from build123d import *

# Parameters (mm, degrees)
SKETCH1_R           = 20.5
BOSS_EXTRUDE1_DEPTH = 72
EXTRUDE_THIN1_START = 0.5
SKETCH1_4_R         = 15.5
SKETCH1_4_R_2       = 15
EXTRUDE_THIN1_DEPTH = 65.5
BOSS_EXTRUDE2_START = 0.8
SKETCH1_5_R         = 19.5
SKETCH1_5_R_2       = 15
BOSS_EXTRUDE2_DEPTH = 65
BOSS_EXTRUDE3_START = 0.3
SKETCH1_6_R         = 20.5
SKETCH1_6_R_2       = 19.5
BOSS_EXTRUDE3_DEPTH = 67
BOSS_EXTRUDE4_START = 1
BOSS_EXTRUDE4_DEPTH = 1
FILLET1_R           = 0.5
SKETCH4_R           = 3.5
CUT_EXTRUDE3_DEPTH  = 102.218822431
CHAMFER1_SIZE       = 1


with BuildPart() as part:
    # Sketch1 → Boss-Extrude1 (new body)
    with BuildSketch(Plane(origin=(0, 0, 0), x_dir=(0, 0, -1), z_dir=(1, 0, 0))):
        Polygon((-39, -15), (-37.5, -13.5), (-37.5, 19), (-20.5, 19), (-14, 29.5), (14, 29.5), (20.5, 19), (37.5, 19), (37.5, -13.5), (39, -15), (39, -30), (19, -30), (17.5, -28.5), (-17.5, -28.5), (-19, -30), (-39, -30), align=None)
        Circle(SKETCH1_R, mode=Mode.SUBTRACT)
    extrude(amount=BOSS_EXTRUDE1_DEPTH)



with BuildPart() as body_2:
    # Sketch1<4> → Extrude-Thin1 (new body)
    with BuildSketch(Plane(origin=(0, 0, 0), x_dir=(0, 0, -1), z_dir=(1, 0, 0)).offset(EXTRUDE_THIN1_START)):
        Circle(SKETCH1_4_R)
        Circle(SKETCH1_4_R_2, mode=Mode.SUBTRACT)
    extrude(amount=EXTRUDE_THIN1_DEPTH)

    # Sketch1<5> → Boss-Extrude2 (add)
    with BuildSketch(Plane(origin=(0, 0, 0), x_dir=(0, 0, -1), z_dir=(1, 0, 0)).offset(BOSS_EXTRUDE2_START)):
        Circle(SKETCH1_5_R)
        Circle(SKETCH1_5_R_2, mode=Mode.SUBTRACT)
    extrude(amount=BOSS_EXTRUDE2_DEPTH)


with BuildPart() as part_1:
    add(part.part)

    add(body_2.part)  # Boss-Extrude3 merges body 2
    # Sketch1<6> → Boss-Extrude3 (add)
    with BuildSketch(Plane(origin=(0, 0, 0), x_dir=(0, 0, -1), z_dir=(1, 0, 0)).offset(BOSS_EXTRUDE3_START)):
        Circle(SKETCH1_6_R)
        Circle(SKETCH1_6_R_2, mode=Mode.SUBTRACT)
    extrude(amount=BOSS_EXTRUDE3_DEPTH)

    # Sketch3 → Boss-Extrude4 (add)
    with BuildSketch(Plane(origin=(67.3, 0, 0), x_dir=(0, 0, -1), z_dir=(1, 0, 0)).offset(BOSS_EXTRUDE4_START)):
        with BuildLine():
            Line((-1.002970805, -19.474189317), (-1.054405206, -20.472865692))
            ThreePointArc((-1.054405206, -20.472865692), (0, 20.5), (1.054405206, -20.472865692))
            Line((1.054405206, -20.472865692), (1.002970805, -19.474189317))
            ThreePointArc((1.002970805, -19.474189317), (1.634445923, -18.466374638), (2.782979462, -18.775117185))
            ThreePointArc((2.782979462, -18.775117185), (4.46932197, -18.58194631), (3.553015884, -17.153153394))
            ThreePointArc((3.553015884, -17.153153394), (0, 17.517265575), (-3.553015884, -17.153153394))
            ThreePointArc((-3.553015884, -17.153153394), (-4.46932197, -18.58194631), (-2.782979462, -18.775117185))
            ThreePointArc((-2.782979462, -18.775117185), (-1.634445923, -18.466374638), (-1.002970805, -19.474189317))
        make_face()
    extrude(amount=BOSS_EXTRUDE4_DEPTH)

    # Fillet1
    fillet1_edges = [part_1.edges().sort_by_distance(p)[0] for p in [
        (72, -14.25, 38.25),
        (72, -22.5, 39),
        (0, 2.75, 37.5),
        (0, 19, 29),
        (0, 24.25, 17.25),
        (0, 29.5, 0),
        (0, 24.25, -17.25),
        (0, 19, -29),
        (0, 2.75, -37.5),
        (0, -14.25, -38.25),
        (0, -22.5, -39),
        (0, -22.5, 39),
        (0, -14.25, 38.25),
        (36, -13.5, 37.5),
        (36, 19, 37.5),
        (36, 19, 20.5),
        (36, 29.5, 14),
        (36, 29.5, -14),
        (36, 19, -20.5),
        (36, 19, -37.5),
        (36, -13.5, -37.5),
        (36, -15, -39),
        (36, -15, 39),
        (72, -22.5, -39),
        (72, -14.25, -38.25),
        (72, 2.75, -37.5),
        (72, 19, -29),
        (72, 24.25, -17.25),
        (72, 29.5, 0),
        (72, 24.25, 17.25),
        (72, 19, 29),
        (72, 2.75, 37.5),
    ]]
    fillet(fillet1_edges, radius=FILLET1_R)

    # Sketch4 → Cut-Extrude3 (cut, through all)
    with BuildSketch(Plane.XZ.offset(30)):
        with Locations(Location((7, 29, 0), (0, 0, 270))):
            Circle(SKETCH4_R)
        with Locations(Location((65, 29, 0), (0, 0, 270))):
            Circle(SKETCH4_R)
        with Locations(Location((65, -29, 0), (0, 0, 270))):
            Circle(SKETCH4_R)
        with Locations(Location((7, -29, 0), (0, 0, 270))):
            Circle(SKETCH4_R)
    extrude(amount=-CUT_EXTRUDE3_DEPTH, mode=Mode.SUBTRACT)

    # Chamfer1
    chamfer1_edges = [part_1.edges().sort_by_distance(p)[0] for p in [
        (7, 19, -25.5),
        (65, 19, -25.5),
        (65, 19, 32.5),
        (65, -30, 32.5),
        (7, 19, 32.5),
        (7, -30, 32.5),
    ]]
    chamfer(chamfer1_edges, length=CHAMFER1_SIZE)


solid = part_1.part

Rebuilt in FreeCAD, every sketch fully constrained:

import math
import FreeCAD as App
import Part
import Sketcher
Q = App.Units.Quantity


def edges_at(feature, points):
    """Names of the edges that pass closest to the given points."""
    edges = feature.Shape.Edges
    near = lambda p: min(range(len(edges)), key=lambda i: edges[i].distToShape(Part.Vertex(*p))[0])
    return sorted({f"Edge{near(p) + 1}" for p in points})

doc = App.newDocument("Part")
body = doc.addObject("PartDesign::Body", "Body")

sketch1 = doc.addObject("Sketcher::SketchObject", "Sketch")
body.addObject(sketch1)
sketch1.AttachmentSupport = (doc.YZ_Plane, [""])
sketch1.MapMode = "FlatFace"
sketch1.addGeometry([
    Part.LineSegment(App.Vector(-13.5, 37.5, 0), App.Vector(-15, 39, 0)),
    Part.LineSegment(App.Vector(-15, 39, 0), App.Vector(-30, 39, 0)),
    Part.LineSegment(App.Vector(-30, 39, 0), App.Vector(-30, 19, 0)),
    Part.LineSegment(App.Vector(-30, 19, 0), App.Vector(-28.5, 17.5, 0)),
    Part.LineSegment(App.Vector(-28.5, 17.5, 0), App.Vector(-28.5, -17.5, 0)),
    Part.LineSegment(App.Vector(-28.5, -17.5, 0), App.Vector(-30, -19, 0)),
    Part.LineSegment(App.Vector(-30, -19, 0), App.Vector(-30, -39, 0)),
    Part.LineSegment(App.Vector(-30, -39, 0), App.Vector(-15, -39, 0)),
    Part.LineSegment(App.Vector(-15, -39, 0), App.Vector(-13.5, -37.5, 0)),
    Part.LineSegment(App.Vector(-13.5, -37.5, 0), App.Vector(19, -37.5, 0)),
    Part.LineSegment(App.Vector(19, -37.5, 0), App.Vector(19, -20.5, 0)),
    Part.LineSegment(App.Vector(19, -20.5, 0), App.Vector(29.5, -14, 0)),
    Part.LineSegment(App.Vector(29.5, -14, 0), App.Vector(29.5, 14, 0)),
    Part.LineSegment(App.Vector(29.5, 14, 0), App.Vector(19, 20.5, 0)),
    Part.LineSegment(App.Vector(19, 20.5, 0), App.Vector(19, 37.5, 0)),
    Part.LineSegment(App.Vector(19, 37.5, 0), App.Vector(-13.5, 37.5, 0)),
    Part.Circle(App.Vector(0, 0, 0), App.Vector(0, 0, 1), 20.5),
], False)
sketch1.addConstraint([
    Sketcher.Constraint("Coincident", 0, 2, 1, 1),
    Sketcher.Constraint("Coincident", 1, 2, 2, 1),
    Sketcher.Constraint("Coincident", 2, 2, 3, 1),
    Sketcher.Constraint("Coincident", 3, 2, 4, 1),
    Sketcher.Constraint("Coincident", 4, 2, 5, 1),
    Sketcher.Constraint("Coincident", 5, 2, 6, 1),
    Sketcher.Constraint("Coincident", 6, 2, 7, 1),
    Sketcher.Constraint("Coincident", 7, 2, 8, 1),
    Sketcher.Constraint("Coincident", 8, 2, 9, 1),
    Sketcher.Constraint("Coincident", 9, 2, 10, 1),
    Sketcher.Constraint("Coincident", 10, 2, 11, 1),
    Sketcher.Constraint("Coincident", 11, 2, 12, 1),
    Sketcher.Constraint("Coincident", 12, 2, 13, 1),
    Sketcher.Constraint("Coincident", 13, 2, 14, 1),
    Sketcher.Constraint("Coincident", 14, 2, 15, 1),
    Sketcher.Constraint("Coincident", 15, 2, 0, 1),
    Sketcher.Constraint("Horizontal", 1),
    Sketcher.Constraint("Vertical", 2),
    Sketcher.Constraint("Vertical", 4),
    Sketcher.Constraint("Vertical", 6),
    Sketcher.Constraint("Horizontal", 7),
    Sketcher.Constraint("Horizontal", 9),
    Sketcher.Constraint("Vertical", 10),
    Sketcher.Constraint("Vertical", 12),
    Sketcher.Constraint("Vertical", 14),
    Sketcher.Constraint("Horizontal", 15),
    Sketcher.Constraint("Coincident", 16, 3, -1, 1),
    Sketcher.Constraint("Symmetric", 2, 2, 5, 2, -1),
    Sketcher.Constraint("Symmetric", 0, 2, 7, 2, -1),
    Sketcher.Constraint("Symmetric", 10, 2, 13, 2, -1),
    Sketcher.Constraint("Symmetric", 8, 2, 15, 2, -1),
    Sketcher.Constraint("Parallel", 0, 3),
    Sketcher.Constraint("Perpendicular", 3, 5),
    Sketcher.Constraint("Parallel", 5, 8),
    Sketcher.Constraint("Equal", 0, 3),
    Sketcher.Constraint("Equal", 11, 13),
    Sketcher.Constraint("Diameter", 16, Q("41 mm")),
    Sketcher.Constraint("DistanceX", 1, 2, 1, 1, Q("15 mm")),
    Sketcher.Constraint("DistanceY", 2, 2, 2, 1, Q("20 mm")),
    Sketcher.Constraint("DistanceY", 4, 2, 4, 1, Q("35 mm")),
    Sketcher.Constraint("DistanceY", 10, 1, 10, 2, Q("17 mm")),
    Sketcher.Constraint("DistanceY", 12, 1, 12, 2, Q("28 mm")),
    Sketcher.Constraint("DistanceX", 9, 1, 9, 2, Q("32.5 mm")),
    Sketcher.Constraint("DistanceX", 0, 2, -1, 1, Q("15 mm")),
    Sketcher.Constraint("DistanceY", -1, 1, 0, 2, Q("39 mm")),
    Sketcher.Constraint("DistanceX", 8, 2, 11, 2, Q("43 mm")),
])
pad1 = doc.addObject("PartDesign::Pad", "Pad")
body.addObject(pad1)
pad1.Profile = sketch1
pad1.Length = 72
body2 = doc.addObject("PartDesign::Body", "Body001")

sketch2 = doc.addObject("Sketcher::SketchObject", "Sketch001")
body2.addObject(sketch2)
sketch2.AttachmentSupport = (doc.getObject("YZ_Plane001"), [""])
sketch2.MapMode = "FlatFace"
sketch2.AttachmentOffset = App.Placement(App.Vector(0, 0, 0.5), App.Rotation())
sketch2.addGeometry([
    Part.Circle(App.Vector(0, 0, 0), App.Vector(0, 0, 1), 16),
    Part.Circle(App.Vector(0, 0, 0), App.Vector(0, 0, 1), 15),
], False)
sketch2.addConstraint([
    Sketcher.Constraint("Coincident", 0, 3, -1, 1),
    Sketcher.Constraint("Coincident", 1, 3, -1, 1),
    Sketcher.Constraint("Diameter", 0, Q("31 mm")),
    Sketcher.Constraint("Diameter", 1, Q("30 mm")),
])
pad2 = doc.addObject("PartDesign::Pad", "Pad001")
body2.addObject(pad2)
pad2.Profile = sketch2
pad2.Length = 65.5

sketch3 = doc.addObject("Sketcher::SketchObject", "Sketch002")
body2.addObject(sketch3)
sketch3.AttachmentSupport = (doc.getObject("YZ_Plane001"), [""])
sketch3.MapMode = "FlatFace"
sketch3.AttachmentOffset = App.Placement(App.Vector(0, 0, 0.8), App.Rotation())
sketch3.addGeometry([
    Part.Circle(App.Vector(0, 0, 0), App.Vector(0, 0, 1), 20),
    Part.Circle(App.Vector(0, 0, 0), App.Vector(0, 0, 1), 15),
], False)
sketch3.addConstraint([
    Sketcher.Constraint("Coincident", 0, 3, -1, 1),
    Sketcher.Constraint("Coincident", 1, 3, -1, 1),
    Sketcher.Constraint("Diameter", 0, Q("39 mm")),
    Sketcher.Constraint("Diameter", 1, Q("30 mm")),
])
pad3 = doc.addObject("PartDesign::Pad", "Pad002")
body2.addObject(pad3)
pad3.Profile = sketch3
pad3.Length = 65
body.AllowCompound = True
doc.recompute()

boolean = doc.addObject("PartDesign::Boolean", "Boolean")
body.addObject(boolean)
boolean.Type = "Fuse"
boolean.addObjects([body2])

sketch4 = doc.addObject("Sketcher::SketchObject", "Sketch003")
body.addObject(sketch4)
sketch4.AttachmentSupport = (doc.YZ_Plane, [""])
sketch4.MapMode = "FlatFace"
sketch4.AttachmentOffset = App.Placement(App.Vector(0, 0, 0.3), App.Rotation())
sketch4.addGeometry([
    Part.Circle(App.Vector(0, 0, 0), App.Vector(0, 0, 1), 20),
    Part.Circle(App.Vector(0, 0, 0), App.Vector(0, 0, 1), 20),
], False)
sketch4.addConstraint([
    Sketcher.Constraint("Coincident", 0, 3, -1, 1),
    Sketcher.Constraint("Coincident", 1, 3, -1, 1),
    Sketcher.Constraint("Diameter", 0, Q("41 mm")),
    Sketcher.Constraint("Diameter", 1, Q("39 mm")),
])
pad4 = doc.addObject("PartDesign::Pad", "Pad003")
body.addObject(pad4)
pad4.Profile = sketch4
pad4.Length = 67

sketch5 = doc.addObject("Sketcher::SketchObject", "Sketch004")
body.addObject(sketch5)
sketch5.AttachmentSupport = (doc.YZ_Plane, [""])
sketch5.MapMode = "FlatFace"
sketch5.AttachmentOffset = App.Placement(App.Vector(0, 0, 68.3), App.Rotation())
sketch5.addGeometry([
    Part.LineSegment(App.Vector(-20.5, 1.1, 0), App.Vector(-19.5, 1, 0)),
    Part.ArcOfCircle(Part.Circle(App.Vector(-19.4, 2, 0), App.Vector(0, 0, 1), 1), math.radians(-94), math.radians(52)),
    Part.ArcOfCircle(Part.Circle(App.Vector(-18.2, 3.6, 0), App.Vector(0, 0, 1), 1), math.radians(-1), math.radians(232)),
    Part.ArcOfCircle(Part.Circle(App.Vector(0, 0, 0), App.Vector(0, 0, 1), 17.5), math.radians(-168), math.radians(168)),
    Part.ArcOfCircle(Part.Circle(App.Vector(-18.2, -3.6, 0), App.Vector(0, 0, 1), 1), math.radians(128), math.radians(361)),
    Part.ArcOfCircle(Part.Circle(App.Vector(-19.4, -2, 0), App.Vector(0, 0, 1), 1), math.radians(-52), math.radians(94)),
    Part.LineSegment(App.Vector(-19.5, -1, 0), App.Vector(-20.5, -1.1, 0)),
    Part.ArcOfCircle(Part.Circle(App.Vector(0, 0, 0), App.Vector(0, 0, 1), 20.5), math.radians(-177), math.radians(177)),
], False)
sketch5.addConstraint([
    Sketcher.Constraint("Coincident", 0, 2, 1, 1),
    Sketcher.Constraint("Tangent", 1, 2, 2, 2),
    Sketcher.Constraint("Coincident", 2, 1, 3, 2),
    Sketcher.Constraint("Coincident", 3, 1, 4, 2),
    Sketcher.Constraint("Tangent", 4, 1, 5, 1),
    Sketcher.Constraint("Coincident", 5, 2, 6, 1),
    Sketcher.Constraint("Coincident", 6, 2, 7, 1),
    Sketcher.Constraint("Coincident", 7, 2, 0, 1),
    Sketcher.Constraint("Coincident", 3, 3, -1, 1),
    Sketcher.Constraint("Coincident", 7, 3, -1, 1),
    Sketcher.Constraint("Equal", 1, 2),
    Sketcher.Constraint("Equal", 2, 4),
    Sketcher.Constraint("Equal", 4, 5),
    Sketcher.Constraint("Symmetric", 2, 3, 4, 3, -1),
    Sketcher.Constraint("Symmetric", 0, 2, 5, 2, -1),
    Sketcher.Constraint("Vertical", 6, 2, 7, 2),
    Sketcher.Constraint("Radius", 1, Q("1 mm")),
    Sketcher.Constraint("Radius", 7, Q("20.5 mm")),
    Sketcher.Constraint("Distance", 0, Q("1 mm")),
    Sketcher.Constraint("DistanceY", -1, 1, 1, 3, Q("2 mm")),
    Sketcher.Constraint("Radius", 3, Q("17.517266 mm")),
    Sketcher.Constraint("DistanceX", 6, 2, 5, 3, Q("1.075701 mm")),
    Sketcher.Constraint("DistanceX", 2, 3, -1, 1, Q("18.15307 mm")),
    Sketcher.Constraint("DistanceY", -1, 1, 2, 3, Q("3.565959 mm")),
])
pad5 = doc.addObject("PartDesign::Pad", "Pad004")
body.addObject(pad5)
pad5.Profile = sketch5
pad5.Length = 1
doc.recompute()

fillet = doc.addObject("PartDesign::Fillet", "Fillet")
body.addObject(fillet)
fillet.Base = (pad5, edges_at(pad5, [
    (72, -14.25, 38.25),
    (72, -22.5, 39),
    (0, 2.75, 37.5),
    (0, 19, 29),
    (0, 24.25, 17.25),
    (0, 29.5, 0),
    (0, 24.25, -17.25),
    (0, 19, -29),
    (0, 2.75, -37.5),
    (0, -14.25, -38.25),
    (0, -22.5, -39),
    (0, -22.5, 39),
    (0, -14.25, 38.25),
    (36, -13.5, 37.5),
    (36, 19, 37.5),
    (36, 19, 20.5),
    (36, 29.5, 14),
    (36, 29.5, -14),
    (36, 19, -20.5),
    (36, 19, -37.5),
    (36, -13.5, -37.5),
    (36, -15, -39),
    (36, -15, 39),
    (72, -22.5, -39),
    (72, -14.25, -38.25),
    (72, 2.75, -37.5),
    (72, 19, -29),
    (72, 24.25, -17.25),
    (72, 29.5, 0),
    (72, 24.25, 17.25),
    (72, 19, 29),
    (72, 2.75, 37.5),
]))
fillet.Radius = 0.5

sketch6 = doc.addObject("Sketcher::SketchObject", "Sketch005")
body.addObject(sketch6)
sketch6.AttachmentSupport = (doc.XZ_Plane, [""])
sketch6.MapMode = "FlatFace"
sketch6.AttachmentOffset = App.Placement(App.Vector(0, 0, 30), App.Rotation())
sketch6.addGeometry([
    Part.Circle(App.Vector(7, 29, 0), App.Vector(0, 0, 1), 3.5),
    Part.Circle(App.Vector(65, 29, 0), App.Vector(0, 0, 1), 3.5),
    Part.Circle(App.Vector(65, -29, 0), App.Vector(0, 0, 1), 3.5),
    Part.Circle(App.Vector(7, -29, 0), App.Vector(0, 0, 1), 3.5),
], False)
sketch6.addConstraint([
    Sketcher.Constraint("Equal", 0, 1),
    Sketcher.Constraint("Equal", 1, 2),
    Sketcher.Constraint("Equal", 2, 3),
    Sketcher.Constraint("Symmetric", 1, 3, 2, 3, -1),
    Sketcher.Constraint("Symmetric", 0, 3, 3, 3, -1),
    Sketcher.Constraint("Horizontal", 0, 3, 1, 3),
    Sketcher.Constraint("Diameter", 0, Q("7 mm")),
    Sketcher.Constraint("DistanceX", -1, 1, 0, 3, Q("7 mm")),
    Sketcher.Constraint("DistanceY", -1, 1, 0, 3, Q("29 mm")),
    Sketcher.Constraint("DistanceX", -1, 1, 1, 3, Q("65 mm")),
])
pocket1 = doc.addObject("PartDesign::Pocket", "Pocket")
body.addObject(pocket1)
pocket1.Profile = sketch6
pocket1.Type = "ThroughAll"
doc.recompute()

chamfer = doc.addObject("PartDesign::Chamfer", "Chamfer")
body.addObject(chamfer)
chamfer.Base = (pocket1, edges_at(pocket1, [
    (7, 19, -25.5),
    (65, 19, -25.5),
    (65, 19, 32.5),
    (65, -30, 32.5),
    (7, 19, 32.5),
    (7, -30, 32.5),
]))
chamfer.Size = 1

doc.recompute()
